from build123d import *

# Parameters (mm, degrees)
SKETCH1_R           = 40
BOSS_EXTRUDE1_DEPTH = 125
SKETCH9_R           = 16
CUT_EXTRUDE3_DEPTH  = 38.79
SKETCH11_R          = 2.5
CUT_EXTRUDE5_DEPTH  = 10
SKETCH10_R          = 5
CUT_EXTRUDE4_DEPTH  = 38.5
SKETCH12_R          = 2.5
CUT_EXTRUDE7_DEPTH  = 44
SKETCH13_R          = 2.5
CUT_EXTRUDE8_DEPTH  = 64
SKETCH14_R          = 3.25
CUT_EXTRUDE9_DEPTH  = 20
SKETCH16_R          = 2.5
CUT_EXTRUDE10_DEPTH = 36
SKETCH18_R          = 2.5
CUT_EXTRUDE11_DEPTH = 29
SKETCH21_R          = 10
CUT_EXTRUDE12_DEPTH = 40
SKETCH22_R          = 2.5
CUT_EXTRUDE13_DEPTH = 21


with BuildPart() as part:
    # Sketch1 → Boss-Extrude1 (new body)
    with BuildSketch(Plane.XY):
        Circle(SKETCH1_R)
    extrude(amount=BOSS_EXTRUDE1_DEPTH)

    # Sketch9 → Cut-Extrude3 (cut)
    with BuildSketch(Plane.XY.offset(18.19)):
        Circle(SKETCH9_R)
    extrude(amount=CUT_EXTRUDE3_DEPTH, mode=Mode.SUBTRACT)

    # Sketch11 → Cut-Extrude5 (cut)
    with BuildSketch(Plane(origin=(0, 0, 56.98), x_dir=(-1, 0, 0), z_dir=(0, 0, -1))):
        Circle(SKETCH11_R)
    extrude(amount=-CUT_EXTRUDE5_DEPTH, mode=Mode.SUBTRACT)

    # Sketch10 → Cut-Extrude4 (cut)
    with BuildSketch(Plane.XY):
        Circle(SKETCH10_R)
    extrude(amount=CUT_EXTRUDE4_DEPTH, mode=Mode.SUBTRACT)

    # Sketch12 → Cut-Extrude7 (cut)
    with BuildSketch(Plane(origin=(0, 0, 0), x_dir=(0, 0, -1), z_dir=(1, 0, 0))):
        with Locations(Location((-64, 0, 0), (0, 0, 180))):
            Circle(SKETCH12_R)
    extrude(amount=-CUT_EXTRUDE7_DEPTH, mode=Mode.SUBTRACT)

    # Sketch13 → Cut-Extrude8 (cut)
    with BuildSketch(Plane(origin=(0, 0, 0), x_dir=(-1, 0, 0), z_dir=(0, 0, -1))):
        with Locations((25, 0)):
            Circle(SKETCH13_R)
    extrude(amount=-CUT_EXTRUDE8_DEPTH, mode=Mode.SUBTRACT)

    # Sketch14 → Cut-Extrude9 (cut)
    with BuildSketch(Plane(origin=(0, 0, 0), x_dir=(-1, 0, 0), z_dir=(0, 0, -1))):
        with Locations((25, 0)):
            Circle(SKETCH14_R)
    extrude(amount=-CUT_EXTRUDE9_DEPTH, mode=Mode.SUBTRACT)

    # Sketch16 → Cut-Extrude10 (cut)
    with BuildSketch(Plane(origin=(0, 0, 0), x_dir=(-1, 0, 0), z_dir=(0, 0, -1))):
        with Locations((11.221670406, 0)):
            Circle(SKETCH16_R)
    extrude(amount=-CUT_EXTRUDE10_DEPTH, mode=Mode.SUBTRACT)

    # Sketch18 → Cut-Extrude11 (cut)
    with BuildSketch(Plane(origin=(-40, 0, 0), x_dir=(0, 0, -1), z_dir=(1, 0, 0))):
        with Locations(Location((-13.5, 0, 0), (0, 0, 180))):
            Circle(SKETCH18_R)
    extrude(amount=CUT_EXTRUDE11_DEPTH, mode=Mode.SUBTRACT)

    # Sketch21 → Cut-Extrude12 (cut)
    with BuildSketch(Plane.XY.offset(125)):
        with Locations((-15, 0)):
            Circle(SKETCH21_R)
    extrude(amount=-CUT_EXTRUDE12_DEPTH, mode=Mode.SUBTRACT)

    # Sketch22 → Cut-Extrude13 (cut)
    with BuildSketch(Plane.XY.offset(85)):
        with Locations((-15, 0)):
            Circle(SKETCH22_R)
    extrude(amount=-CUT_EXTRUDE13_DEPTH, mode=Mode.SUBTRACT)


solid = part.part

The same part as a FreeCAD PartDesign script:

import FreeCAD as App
import Part
import Sketcher
from FreeCAD import Vector

doc = App.newDocument("Part")
params = doc.addObject("Spreadsheet::Sheet", "Params")
for row, (alias, value) in enumerate([
    ("sketch1_diameter", "80 mm"),
    ("pad1_length", "125 mm"),
    ("sketch2_diameter", "32 mm"),
    ("pocket1_length", "38.79 mm"),
    ("sketch3_diameter", "5 mm"),
    ("pocket2_length", "10 mm"),
    ("sketch4_diameter", "10 mm"),
    ("pocket3_length", "38.5 mm"),
    ("sketch5_diameter", "5 mm"),
    ("pocket4_length", "44 mm"),
    ("sketch6_diameter", "5 mm"),
    ("pocket5_length", "64 mm"),
    ("sketch7_diameter", "6.5 mm"),
    ("pocket6_length", "20 mm"),
    ("sketch8_diameter", "5 mm"),
    ("pocket7_length", "36 mm"),
    ("sketch9_diameter", "5 mm"),
    ("pocket8_length", "29 mm"),
    ("sketch10_diameter", "20 mm"),
    ("pocket9_length", "40 mm"),
    ("sketch11_diameter", "5 mm"),
    ("pocket10_length", "21 mm"),
], start=1):
    params.set(f"A{row}", alias)
    params.set(f"B{row}", "=" + value)
    params.setAlias(f"B{row}", alias)

body = doc.addObject("PartDesign::Body", "Body")

sketch1 = body.newObject("Sketcher::SketchObject", "Sketch")
sketch1.AttachmentSupport = (doc.getObject("XY_Plane"), [""])
sketch1.MapMode = "FlatFace"
sketch1.addGeometry(Part.Circle(Vector(0, 0, 0), Vector(0, 0, 1), 40), False)
sketch1.addConstraint(Sketcher.Constraint("Coincident", 0, 3, -1, 1))
sketch1.addConstraint(Sketcher.Constraint("Diameter", 0, 80.0))
sketch1.setExpression("Constraints[1]", "Params.sketch1_diameter")
pad1 = body.newObject("PartDesign::Pad", "Pad")
pad1.Profile = sketch1
pad1.setExpression("Length", "Params.pad1_length")

sketch2 = body.newObject("Sketcher::SketchObject", "Sketch001")
sketch2.AttachmentSupport = (doc.getObject("XY_Plane"), [""])
sketch2.MapMode = "FlatFace"
sketch2.AttachmentOffset = App.Placement(Vector(0, 0, 18.19), App.Rotation())
sketch2.addGeometry(Part.Circle(Vector(0, 0, 0), Vector(0, 0, 1), 16), False)
sketch2.addConstraint(Sketcher.Constraint("Coincident", 0, 3, -1, 1))
sketch2.addConstraint(Sketcher.Constraint("Diameter", 0, 32.0))
sketch2.setExpression("Constraints[1]", "Params.sketch2_diameter")
pocket1 = body.newObject("PartDesign::Pocket", "Pocket")
pocket1.Profile = sketch2
pocket1.setExpression("Length", "Params.pocket1_length")
pocket1.Reversed = True

sketch3 = body.newObject("Sketcher::SketchObject", "Sketch002")
sketch3.AttachmentSupport = (doc.getObject("XY_Plane"), [""])
sketch3.MapMode = "FlatFace"
sketch3.AttachmentOffset = App.Placement(Vector(0, 0, 56.98), App.Rotation())
sketch3.addGeometry(Part.Circle(Vector(0, 0, 0), Vector(0, 0, 1), 2.5), False)
sketch3.addConstraint(Sketcher.Constraint("Coincident", 0, 3, -1, 1))
sketch3.addConstraint(Sketcher.Constraint("Diameter", 0, 5.0))
sketch3.setExpression("Constraints[1]", "Params.sketch3_diameter")
pocket2 = body.newObject("PartDesign::Pocket", "Pocket001")
pocket2.Profile = sketch3
pocket2.setExpression("Length", "Params.pocket2_length")
pocket2.Reversed = True

sketch4 = body.newObject("Sketcher::SketchObject", "Sketch003")
sketch4.AttachmentSupport = (doc.getObject("XY_Plane"), [""])
sketch4.MapMode = "FlatFace"
sketch4.addGeometry(Part.Circle(Vector(0, 0, 0), Vector(0, 0, 1), 5), False)
sketch4.addConstraint(Sketcher.Constraint("Coincident", 0, 3, -1, 1))
sketch4.addConstraint(Sketcher.Constraint("Diameter", 0, 10.0))
sketch4.setExpression("Constraints[1]", "Params.sketch4_diameter")
pocket3 = body.newObject("PartDesign::Pocket", "Pocket002")
pocket3.Profile = sketch4
pocket3.setExpression("Length", "Params.pocket3_length")
pocket3.Reversed = True

sketch5 = body.newObject("Sketcher::SketchObject", "Sketch004")
sketch5.AttachmentSupport = (doc.getObject("YZ_Plane"), [""])
sketch5.MapMode = "FlatFace"
sketch5.addGeometry(Part.Circle(Vector(0, 64, 0), Vector(0, 0, 1), 2.5), False)
sketch5.addConstraint(Sketcher.Constraint("PointOnObject", 0, 3, -2))
sketch5.addConstraint(Sketcher.Constraint("Diameter", 0, 5.0))
sketch5.addConstraint(Sketcher.Constraint("DistanceY", -1, 1, 0, 3, 64.0))
sketch5.setExpression("Constraints[1]", "Params.sketch5_diameter")
pocket4 = body.newObject("PartDesign::Pocket", "Pocket003")
pocket4.Profile = sketch5
pocket4.setExpression("Length", "Params.pocket4_length")

sketch6 = body.newObject("Sketcher::SketchObject", "Sketch005")
sketch6.AttachmentSupport = (doc.getObject("XY_Plane"), [""])
sketch6.MapMode = "FlatFace"
sketch6.addGeometry(Part.Circle(Vector(-25, 0, 0), Vector(0, 0, 1), 2.5), False)
sketch6.addConstraint(Sketcher.Constraint("PointOnObject", 0, 3, -1))
sketch6.addConstraint(Sketcher.Constraint("Diameter", 0, 5.0))
sketch6.addConstraint(Sketcher.Constraint("DistanceX", 0, 3, -1, 1, 25.0))
sketch6.setExpression("Constraints[1]", "Params.sketch6_diameter")
pocket5 = body.newObject("PartDesign::Pocket", "Pocket004")
pocket5.Profile = sketch6
pocket5.setExpression("Length", "Params.pocket5_length")
pocket5.Reversed = True

sketch7 = body.newObject("Sketcher::SketchObject", "Sketch006")
sketch7.AttachmentSupport = (doc.getObject("XY_Plane"), [""])
sketch7.MapMode = "FlatFace"
sketch7.addGeometry(Part.Circle(Vector(-25, 0, 0), Vector(0, 0, 1), 3.2), False)
sketch7.addConstraint(Sketcher.Constraint("PointOnObject", 0, 3, -1))
sketch7.addConstraint(Sketcher.Constraint("Diameter", 0, 6.5))
sketch7.addConstraint(Sketcher.Constraint("DistanceX", 0, 3, -1, 1, 25.0))
sketch7.setExpression("Constraints[1]", "Params.sketch7_diameter")
pocket6 = body.newObject("PartDesign::Pocket", "Pocket005")
pocket6.Profile = sketch7
pocket6.setExpression("Length", "Params.pocket6_length")
pocket6.Reversed = True

sketch8 = body.newObject("Sketcher::SketchObject", "Sketch007")
sketch8.AttachmentSupport = (doc.getObject("XY_Plane"), [""])
sketch8.MapMode = "FlatFace"
sketch8.addGeometry(Part.Circle(Vector(-11.2, 0, 0), Vector(0, 0, 1), 2.5), False)
sketch8.addConstraint(Sketcher.Constraint("PointOnObject", 0, 3, -1))
sketch8.addConstraint(Sketcher.Constraint("Diameter", 0, 5.0))
sketch8.addConstraint(Sketcher.Constraint("DistanceX", 0, 3, -1, 1, 11.22167))
sketch8.setExpression("Constraints[1]", "Params.sketch8_diameter")
pocket7 = body.newObject("PartDesign::Pocket", "Pocket006")
pocket7.Profile = sketch8
pocket7.setExpression("Length", "Params.pocket7_length")
pocket7.Reversed = True

sketch9 = body.newObject("Sketcher::SketchObject", "Sketch008")
sketch9.AttachmentSupport = (doc.getObject("YZ_Plane"), [""])
sketch9.MapMode = "FlatFace"
sketch9.AttachmentOffset = App.Placement(Vector(0, 0, -40), App.Rotation())
sketch9.addGeometry(Part.Circle(Vector(0, 13.5, 0), Vector(0, 0, 1), 2.5), False)
sketch9.addConstraint(Sketcher.Constraint("PointOnObject", 0, 3, -2))
sketch9.addConstraint(Sketcher.Constraint("Diameter", 0, 5.0))
sketch9.addConstraint(Sketcher.Constraint("DistanceY", -1, 1, 0, 3, 13.5))
sketch9.setExpression("Constraints[1]", "Params.sketch9_diameter")
pocket8 = body.newObject("PartDesign::Pocket", "Pocket007")
pocket8.Profile = sketch9
pocket8.setExpression("Length", "Params.pocket8_length")
pocket8.Reversed = True

sketch10 = body.newObject("Sketcher::SketchObject", "Sketch009")
sketch10.AttachmentSupport = (doc.getObject("XY_Plane"), [""])
sketch10.MapMode = "FlatFace"
sketch10.AttachmentOffset = App.Placement(Vector(0, 0, 125), App.Rotation())
sketch10.addGeometry(Part.Circle(Vector(-15, 0, 0), Vector(0, 0, 1), 10), False)
sketch10.addConstraint(Sketcher.Constraint("PointOnObject", 0, 3, -1))
sketch10.addConstraint(Sketcher.Constraint("Diameter", 0, 20.0))
sketch10.addConstraint(Sketcher.Constraint("DistanceX", 0, 3, -1, 1, 15.0))
sketch10.setExpression("Constraints[1]", "Params.sketch10_diameter")
pocket9 = body.newObject("PartDesign::Pocket", "Pocket008")
pocket9.Profile = sketch10
pocket9.setExpression("Length", "Params.pocket9_length")

sketch11 = body.newObject("Sketcher::SketchObject", "Sketch010")
sketch11.AttachmentSupport = (doc.getObject("XY_Plane"), [""])
sketch11.MapMode = "FlatFace"
sketch11.AttachmentOffset = App.Placement(Vector(0, 0, 85), App.Rotation())
sketch11.addGeometry(Part.Circle(Vector(-15, 0, 0), Vector(0, 0, 1), 2.5), False)
sketch11.addConstraint(Sketcher.Constraint("PointOnObject", 0, 3, -1))
sketch11.addConstraint(Sketcher.Constraint("Diameter", 0, 5.0))
sketch11.addConstraint(Sketcher.Constraint("DistanceX", 0, 3, -1, 1, 15.0))
sketch11.setExpression("Constraints[1]", "Params.sketch11_diameter")
pocket10 = body.newObject("PartDesign::Pocket", "Pocket009")
pocket10.Profile = sketch11
pocket10.setExpression("Length", "Params.pocket10_length")

doc.recompute()
